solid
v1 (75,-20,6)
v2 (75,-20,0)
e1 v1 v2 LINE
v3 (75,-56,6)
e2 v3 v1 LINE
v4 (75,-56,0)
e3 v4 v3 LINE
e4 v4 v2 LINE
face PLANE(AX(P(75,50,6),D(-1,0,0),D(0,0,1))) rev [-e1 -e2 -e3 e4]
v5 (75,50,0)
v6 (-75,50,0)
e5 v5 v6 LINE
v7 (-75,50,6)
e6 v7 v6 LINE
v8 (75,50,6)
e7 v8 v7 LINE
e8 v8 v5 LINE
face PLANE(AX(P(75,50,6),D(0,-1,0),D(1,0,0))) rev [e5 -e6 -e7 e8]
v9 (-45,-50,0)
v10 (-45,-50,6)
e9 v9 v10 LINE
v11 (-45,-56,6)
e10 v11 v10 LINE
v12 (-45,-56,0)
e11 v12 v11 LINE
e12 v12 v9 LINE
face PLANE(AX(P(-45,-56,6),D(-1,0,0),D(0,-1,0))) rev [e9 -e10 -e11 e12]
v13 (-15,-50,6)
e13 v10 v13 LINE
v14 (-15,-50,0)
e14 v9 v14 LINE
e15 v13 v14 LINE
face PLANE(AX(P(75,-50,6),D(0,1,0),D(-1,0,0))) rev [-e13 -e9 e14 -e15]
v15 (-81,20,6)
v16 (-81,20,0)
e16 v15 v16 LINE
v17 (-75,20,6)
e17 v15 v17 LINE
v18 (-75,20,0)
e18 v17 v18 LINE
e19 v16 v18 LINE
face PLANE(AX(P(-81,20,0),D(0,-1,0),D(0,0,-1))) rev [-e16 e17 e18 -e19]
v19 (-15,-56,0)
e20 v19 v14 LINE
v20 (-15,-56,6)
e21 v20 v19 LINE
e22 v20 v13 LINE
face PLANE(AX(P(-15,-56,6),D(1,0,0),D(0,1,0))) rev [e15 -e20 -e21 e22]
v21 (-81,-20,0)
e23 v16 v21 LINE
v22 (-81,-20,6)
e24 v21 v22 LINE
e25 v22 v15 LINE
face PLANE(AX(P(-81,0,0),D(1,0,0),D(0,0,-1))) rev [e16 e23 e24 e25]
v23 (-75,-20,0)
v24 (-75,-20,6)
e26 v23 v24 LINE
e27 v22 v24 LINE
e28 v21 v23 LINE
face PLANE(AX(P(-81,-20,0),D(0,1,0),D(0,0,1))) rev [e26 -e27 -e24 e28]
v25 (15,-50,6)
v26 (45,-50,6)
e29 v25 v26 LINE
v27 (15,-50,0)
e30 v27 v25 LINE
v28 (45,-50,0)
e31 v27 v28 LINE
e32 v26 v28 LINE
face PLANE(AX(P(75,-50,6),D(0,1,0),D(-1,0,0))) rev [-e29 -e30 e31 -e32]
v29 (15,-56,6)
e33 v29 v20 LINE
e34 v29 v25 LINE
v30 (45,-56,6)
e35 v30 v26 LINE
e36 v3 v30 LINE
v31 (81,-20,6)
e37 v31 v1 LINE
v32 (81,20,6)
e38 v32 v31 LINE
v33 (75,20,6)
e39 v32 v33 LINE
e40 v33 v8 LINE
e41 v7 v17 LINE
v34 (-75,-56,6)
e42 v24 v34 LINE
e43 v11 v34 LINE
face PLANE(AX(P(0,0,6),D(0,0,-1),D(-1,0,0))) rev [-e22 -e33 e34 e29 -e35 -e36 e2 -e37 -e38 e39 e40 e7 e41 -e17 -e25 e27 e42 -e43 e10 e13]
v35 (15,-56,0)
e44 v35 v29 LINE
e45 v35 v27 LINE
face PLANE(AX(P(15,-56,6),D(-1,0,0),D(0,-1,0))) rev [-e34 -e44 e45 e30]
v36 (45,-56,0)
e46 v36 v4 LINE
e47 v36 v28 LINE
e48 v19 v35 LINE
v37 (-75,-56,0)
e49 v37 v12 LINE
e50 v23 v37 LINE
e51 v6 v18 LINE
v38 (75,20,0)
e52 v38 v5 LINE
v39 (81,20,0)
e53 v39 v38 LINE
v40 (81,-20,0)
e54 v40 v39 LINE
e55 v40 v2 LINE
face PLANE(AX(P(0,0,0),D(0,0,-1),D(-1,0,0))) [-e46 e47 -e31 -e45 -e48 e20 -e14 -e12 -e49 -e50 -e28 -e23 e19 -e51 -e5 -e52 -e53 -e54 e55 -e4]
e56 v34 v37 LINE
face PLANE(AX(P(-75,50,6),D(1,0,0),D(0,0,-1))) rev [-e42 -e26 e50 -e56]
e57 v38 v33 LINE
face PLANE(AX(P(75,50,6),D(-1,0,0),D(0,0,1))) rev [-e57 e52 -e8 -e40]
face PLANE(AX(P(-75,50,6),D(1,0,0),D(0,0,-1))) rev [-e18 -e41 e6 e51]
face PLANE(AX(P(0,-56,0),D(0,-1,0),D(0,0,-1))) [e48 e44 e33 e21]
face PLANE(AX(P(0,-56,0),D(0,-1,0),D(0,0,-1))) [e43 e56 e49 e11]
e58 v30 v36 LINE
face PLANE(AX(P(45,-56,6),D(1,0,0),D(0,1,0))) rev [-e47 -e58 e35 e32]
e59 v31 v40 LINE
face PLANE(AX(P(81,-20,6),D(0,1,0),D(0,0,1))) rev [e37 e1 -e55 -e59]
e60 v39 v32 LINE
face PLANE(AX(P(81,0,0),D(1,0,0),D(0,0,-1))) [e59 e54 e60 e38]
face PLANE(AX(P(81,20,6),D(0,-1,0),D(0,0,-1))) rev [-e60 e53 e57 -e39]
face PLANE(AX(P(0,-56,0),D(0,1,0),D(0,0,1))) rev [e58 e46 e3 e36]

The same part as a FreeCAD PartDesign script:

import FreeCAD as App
import Part
import Sketcher
from FreeCAD import Vector
Q = App.Units.Quantity

doc = App.newDocument("Part")
body = doc.addObject("PartDesign::Body", "Body")

# Sketch on XY plane
sketch1 = doc.addObject("Sketcher::SketchObject", "Sketch")
body.addObject(sketch1)
sketch1.AttachmentSupport = (doc.XY_Plane, [""])
sketch1.MapMode = "FlatFace"
sketch1.addGeometry([
    Part.LineSegment(Vector(-75, 50, 0), Vector(-75, -50, 0)),
    Part.LineSegment(Vector(-75, -50, 0), Vector(75, -50, 0)),
    Part.LineSegment(Vector(75, -50, 0), Vector(75, 50, 0)),
    Part.LineSegment(Vector(75, 50, 0), Vector(-75, 50, 0)),
], False)
sketch1.addConstraint([
    Sketcher.Constraint("Coincident", 0, 2, 1, 1),
    Sketcher.Constraint("Coincident", 1, 2, 2, 1),
    Sketcher.Constraint("Coincident", 2, 2, 3, 1),
    Sketcher.Constraint("Coincident", 3, 2, 0, 1),
    Sketcher.Constraint("Vertical", 0),
    Sketcher.Constraint("Horizontal", 1),
    Sketcher.Constraint("Vertical", 2),
    Sketcher.Constraint("Horizontal", 3),
    Sketcher.Constraint("Symmetric", 0, 2, 2, 2, -1, 1),
    Sketcher.Constraint("DistanceX", 1, 1, 1, 2, Q("150 mm")),
    Sketcher.Constraint("DistanceY", 0, 2, 0, 1, Q("100 mm")),
])
pad1 = doc.addObject("PartDesign::Pad", "Pad")
body.addObject(pad1)
pad1.Profile = sketch1
pad1.Length = 6

# Sketch on XZ plane
sketch2 = doc.addObject("Sketcher::SketchObject", "Sketch001")
body.addObject(sketch2)
sketch2.AttachmentSupport = (doc.XZ_Plane, [""])
sketch2.MapMode = "FlatFace"
sketch2.AttachmentOffset = App.Placement(Vector(0, 0, 50), App.Rotation())
sketch2.addGeometry([
    Part.LineSegment(Vector(-75, 6, 0), Vector(-75, 0, 0)),  # 0
    Part.LineSegment(Vector(-75, 0, 0), Vector(-45, 0, 0)),  # 1
    Part.LineSegment(Vector(-45, 0, 0), Vector(-45, 6, 0)),  # 2
    Part.LineSegment(Vector(-45, 6, 0), Vector(-75, 6, 0)),  # 3
    Part.LineSegment(Vector(-15, 6, 0), Vector(-15, 0, 0)),  # 4
    Part.LineSegment(Vector(-15, 0, 0), Vector(15, 0, 0)),  # 5
    Part.LineSegment(Vector(15, 0, 0), Vector(15, 6, 0)),  # 6
    Part.LineSegment(Vector(15, 6, 0), Vector(-15, 6, 0)),  # 7
    Part.LineSegment(Vector(45, 6, 0), Vector(45, 0, 0)),  # 8
    Part.LineSegment(Vector(45, 0, 0), Vector(75, 0, 0)),  # 9
    Part.LineSegment(Vector(75, 0, 0), Vector(75, 6, 0)),  # 10
    Part.LineSegment(Vector(75, 6, 0), Vector(45, 6, 0)),  # 11
], False)
sketch2.addConstraint([
    Sketcher.Constraint("Coincident", 0, 2, 1, 1),
    Sketcher.Constraint("Coincident", 1, 2, 2, 1),
    Sketcher.Constraint("Coincident", 2, 2, 3, 1),
    Sketcher.Constraint("Coincident", 3, 2, 0, 1),
    Sketcher.Constraint("Coincident", 4, 2, 5, 1),
    Sketcher.Constraint("Coincident", 5, 2, 6, 1),
    Sketcher.Constraint("Coincident", 6, 2, 7, 1),
    Sketcher.Constraint("Coincident", 7, 2, 4, 1),
    Sketcher.Constraint("Coincident", 8, 2, 9, 1),
    Sketcher.Constraint("Coincident", 9, 2, 10, 1),
    Sketcher.Constraint("Coincident", 10, 2, 11, 1),
    Sketcher.Constraint("Coincident", 11, 2, 8, 1),
    Sketcher.Constraint("Vertical", 0),
    Sketcher.Constraint("Horizontal", 1),
    Sketcher.Constraint("Vertical", 2),
    Sketcher.Constraint("Horizontal", 3),
    Sketcher.Constraint("Vertical", 4),
    Sketcher.Constraint("Horizontal", 5),
    Sketcher.Constraint("Vertical", 6),
    Sketcher.Constraint("Horizontal", 7),
    Sketcher.Constraint("Vertical", 8),
    Sketcher.Constraint("Horizontal", 9),
    Sketcher.Constraint("Vertical", 10),
    Sketcher.Constraint("Horizontal", 11),
    Sketcher.Constraint("Symmetric", 4, 2, 5, 2, -1, 1),
    Sketcher.Constraint("Symmetric", 1, 2, 8, 2, -1, 1),
    Sketcher.Constraint("Symmetric", 0, 2, 9, 2, -2),
    Sketcher.Constraint("Horizontal", 3, 2, 6, 2),
    Sketcher.Constraint("Horizontal", 7, 2, 10, 2),
    Sketcher.Constraint("Equal", 3, 5),
    Sketcher.Constraint("DistanceX", 1, 1, 1, 2, Q("30 mm")),
    Sketcher.Constraint("DistanceY", 0, 2, 0, 1, Q("6 mm")),
    Sketcher.Constraint("DistanceX", 0, 2, -1, 1, Q("75 mm")),
])
pad2 = doc.addObject("PartDesign::Pad", "Pad001")
body.addObject(pad2)
pad2.Profile = sketch2
pad2.Length = 6

# Sketch on YZ plane
sketch3 = doc.addObject("Sketcher::SketchObject", "Sketch002")
body.addObject(sketch3)
sketch3.AttachmentSupport = (doc.YZ_Plane, [""])
sketch3.MapMode = "FlatFace"
sketch3.AttachmentOffset = App.Placement(Vector(0, 0, 75), App.Rotation())
sketch3.addGeometry([
    Part.LineSegment(Vector(20, 6, 0), Vector(-20, 6, 0)),
    Part.LineSegment(Vector(-20, 6, 0), Vector(-20, 0, 0)),
    Part.LineSegment(Vector(-20, 0, 0), Vector(20, 0, 0)),
    Part.LineSegment(Vector(20, 0, 0), Vector(20, 6, 0)),
], False)
sketch3.addConstraint([
    Sketcher.Constraint("Coincident", 0, 2, 1, 1),
    Sketcher.Constraint("Coincident", 1, 2, 2, 1),
    Sketcher.Constraint("Coincident", 2, 2, 3, 1),
    Sketcher.Constraint("Coincident", 3, 2, 0, 1),
    Sketcher.Constraint("Horizontal", 0),
    Sketcher.Constraint("Vertical", 1),
    Sketcher.Constraint("Horizontal", 2),
    Sketcher.Constraint("Vertical", 3),
    Sketcher.Constraint("Symmetric", 1, 2, 2, 2, -1, 1),
    Sketcher.Constraint("DistanceX", 0, 2, 0, 1, Q("40 mm")),
    Sketcher.Constraint("DistanceY", 1, 2, 1, 1, Q("6 mm")),
])
pad3 = doc.addObject("PartDesign::Pad", "Pad002")
body.addObject(pad3)
pad3.Profile = sketch3
pad3.Length = 6

# Sketch on YZ plane
sketch4 = doc.addObject("Sketcher::SketchObject", "Sketch003")
body.addObject(sketch4)
sketch4.AttachmentSupport = (doc.YZ_Plane, [""])
sketch4.MapMode = "FlatFace"
sketch4.AttachmentOffset = App.Placement(Vector(0, 0, -75), App.Rotation())
sketch4.addGeometry([
    Part.LineSegment(Vector(20, 0, 0), Vector(-20, 0, 0)),
    Part.LineSegment(Vector(-20, 0, 0), Vector(-20, 6, 0)),
    Part.LineSegment(Vector(-20, 6, 0), Vector(20, 6, 0)),
    Part.LineSegment(Vector(20, 6, 0), Vector(20, 0, 0)),
], False)
sketch4.addConstraint([
    Sketcher.Constraint("Coincident", 0, 2, 1, 1),
    Sketcher.Constraint("Coincident", 1, 2, 2, 1),
    Sketcher.Constraint("Coincident", 2, 2, 3, 1),
    Sketcher.Constraint("Coincident", 3, 2, 0, 1),
    Sketcher.Constraint("Horizontal", 0),
    Sketcher.Constraint("Vertical", 1),
    Sketcher.Constraint("Horizontal", 2),
    Sketcher.Constraint("Vertical", 3),
    Sketcher.Constraint("Symmetric", 0, 2, 3, 2, -1, 1),
    Sketcher.Constraint("DistanceX", 0, 2, 0, 1, Q("40 mm")),
    Sketcher.Constraint("DistanceY", 1, 1, 1, 2, Q("6 mm")),
])
pad4 = doc.addObject("PartDesign::Pad", "Pad003")
body.addObject(pad4)
pad4.Profile = sketch4
pad4.Length = 6
pad4.Reversed = True

doc.recompute()
